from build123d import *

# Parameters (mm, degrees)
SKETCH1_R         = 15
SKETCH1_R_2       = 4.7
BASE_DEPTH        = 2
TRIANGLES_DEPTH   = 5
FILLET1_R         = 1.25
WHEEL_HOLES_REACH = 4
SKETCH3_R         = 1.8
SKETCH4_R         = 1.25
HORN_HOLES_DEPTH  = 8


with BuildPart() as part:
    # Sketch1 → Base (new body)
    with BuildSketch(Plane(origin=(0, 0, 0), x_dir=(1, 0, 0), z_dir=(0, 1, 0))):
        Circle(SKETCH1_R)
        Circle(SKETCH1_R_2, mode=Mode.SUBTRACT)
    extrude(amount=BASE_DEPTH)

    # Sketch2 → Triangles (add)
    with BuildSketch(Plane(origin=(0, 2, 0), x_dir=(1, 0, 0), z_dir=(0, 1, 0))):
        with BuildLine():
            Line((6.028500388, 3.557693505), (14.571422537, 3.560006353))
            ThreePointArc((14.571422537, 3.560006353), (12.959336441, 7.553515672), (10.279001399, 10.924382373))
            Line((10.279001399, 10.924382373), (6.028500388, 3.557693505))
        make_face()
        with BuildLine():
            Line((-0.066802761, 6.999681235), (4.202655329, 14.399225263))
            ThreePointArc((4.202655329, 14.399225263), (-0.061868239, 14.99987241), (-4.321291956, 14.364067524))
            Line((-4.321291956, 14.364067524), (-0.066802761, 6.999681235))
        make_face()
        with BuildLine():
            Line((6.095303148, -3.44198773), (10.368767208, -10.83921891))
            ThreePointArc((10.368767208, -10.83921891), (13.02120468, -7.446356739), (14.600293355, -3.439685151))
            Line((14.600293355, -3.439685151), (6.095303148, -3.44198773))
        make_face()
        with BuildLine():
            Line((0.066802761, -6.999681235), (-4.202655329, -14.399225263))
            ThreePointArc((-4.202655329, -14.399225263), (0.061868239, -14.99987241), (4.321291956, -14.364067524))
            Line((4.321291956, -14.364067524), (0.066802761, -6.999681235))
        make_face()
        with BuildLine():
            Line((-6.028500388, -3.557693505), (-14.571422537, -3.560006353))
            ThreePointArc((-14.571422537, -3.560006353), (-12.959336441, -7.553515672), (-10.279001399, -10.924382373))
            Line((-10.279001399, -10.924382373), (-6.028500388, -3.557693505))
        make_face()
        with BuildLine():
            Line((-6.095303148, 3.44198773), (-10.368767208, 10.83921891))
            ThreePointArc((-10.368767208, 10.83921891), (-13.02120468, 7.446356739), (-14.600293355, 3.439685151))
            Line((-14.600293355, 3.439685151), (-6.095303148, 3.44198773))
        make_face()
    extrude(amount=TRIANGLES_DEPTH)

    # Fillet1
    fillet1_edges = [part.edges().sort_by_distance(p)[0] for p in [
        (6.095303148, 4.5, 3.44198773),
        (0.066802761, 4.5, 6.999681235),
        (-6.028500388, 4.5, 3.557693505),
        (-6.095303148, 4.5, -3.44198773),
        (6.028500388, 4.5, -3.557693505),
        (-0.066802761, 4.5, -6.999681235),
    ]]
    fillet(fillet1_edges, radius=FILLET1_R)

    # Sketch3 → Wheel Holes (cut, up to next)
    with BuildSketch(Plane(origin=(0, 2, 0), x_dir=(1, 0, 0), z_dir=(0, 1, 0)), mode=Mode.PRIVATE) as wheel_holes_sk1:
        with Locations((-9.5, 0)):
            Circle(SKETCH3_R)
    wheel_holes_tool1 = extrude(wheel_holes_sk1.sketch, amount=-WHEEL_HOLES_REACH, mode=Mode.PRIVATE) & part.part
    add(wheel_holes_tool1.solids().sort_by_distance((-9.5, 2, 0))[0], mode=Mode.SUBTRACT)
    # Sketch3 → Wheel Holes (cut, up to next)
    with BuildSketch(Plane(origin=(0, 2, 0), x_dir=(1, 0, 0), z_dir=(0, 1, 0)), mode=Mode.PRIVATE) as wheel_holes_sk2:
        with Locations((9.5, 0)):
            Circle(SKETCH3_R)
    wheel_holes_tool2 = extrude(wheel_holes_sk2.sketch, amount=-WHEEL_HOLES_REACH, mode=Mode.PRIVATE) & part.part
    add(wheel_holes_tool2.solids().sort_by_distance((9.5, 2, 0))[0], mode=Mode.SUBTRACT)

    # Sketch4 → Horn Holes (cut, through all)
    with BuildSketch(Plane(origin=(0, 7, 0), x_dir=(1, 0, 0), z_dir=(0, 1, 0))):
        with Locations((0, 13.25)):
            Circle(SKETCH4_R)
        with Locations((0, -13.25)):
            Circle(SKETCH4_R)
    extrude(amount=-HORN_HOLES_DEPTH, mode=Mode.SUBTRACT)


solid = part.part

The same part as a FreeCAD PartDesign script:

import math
import FreeCAD as App
import Part
import Sketcher
Q = App.Units.Quantity


def edges_at(feature, points):
    """Names of the edges that pass closest to the given points."""
    edges = feature.Shape.Edges
    near = lambda p: min(range(len(edges)), key=lambda i: edges[i].distToShape(Part.Vertex(*p))[0])
    return sorted({f"Edge{near(p) + 1}" for p in points})

doc = App.newDocument("Part")
body = doc.addObject("PartDesign::Body", "Body")

# Sketch on XZ plane
sketch1 = body.newObject("Sketcher::SketchObject", "Sketch")
sketch1.AttachmentSupport = (doc.getObject("XZ_Plane"), [""])
sketch1.MapMode = "FlatFace"
sketch1.addGeometry(Part.Circle(App.Vector(0, 0, 0), App.Vector(0, 0, 1), 15), False)
sketch1.addGeometry(Part.Circle(App.Vector(0, 0, 0), App.Vector(0, 0, 1), 4.7), False)
sketch1.addConstraint(Sketcher.Constraint("Coincident", 0, 3, -1, 1))
sketch1.addConstraint(Sketcher.Constraint("Coincident", 1, 3, -1, 1))
sketch1.addConstraint(Sketcher.Constraint("Diameter", 0, Q("30 mm")))
sketch1.addConstraint(Sketcher.Constraint("Diameter", 1, Q("9.4 mm")))
pad1 = body.newObject("PartDesign::Pad", "Pad")
pad1.Profile = sketch1
pad1.Length = 2
pad1.Reversed = True

# Sketch on XZ plane
sketch2 = body.newObject("Sketcher::SketchObject", "Sketch001")
sketch2.AttachmentSupport = (doc.getObject("XZ_Plane"), [""])
sketch2.MapMode = "FlatFace"
sketch2.AttachmentOffset = App.Placement(App.Vector(0, 0, -2), App.Rotation())
sketch2.addGeometry(Part.LineSegment(App.Vector(6, -4, 0), App.Vector(15, -4, 0)), False)
sketch2.addGeometry(Part.ArcOfCircle(Part.Circle(App.Vector(0, 0, 0), App.Vector(0, 0, 1), 15), math.radians(-47), math.radians(-14)), False)
sketch2.addGeometry(Part.LineSegment(App.Vector(10, -11, 0), App.Vector(6, -4, 0)), False)
sketch2.addGeometry(Part.LineSegment(App.Vector(0, -7, 0), App.Vector(4, -14, 0)), False)
sketch2.addGeometry(Part.ArcOfCircle(Part.Circle(App.Vector(0, 0, 0), App.Vector(0, 0, 1), 15), math.radians(-107), math.radians(-74)), False)
sketch2.addGeometry(Part.LineSegment(App.Vector(-4, -14, 0), App.Vector(0, -7, 0)), False)
sketch2.addGeometry(Part.LineSegment(App.Vector(6, 3, 0), App.Vector(10, 11, 0)), False)
sketch2.addGeometry(Part.ArcOfCircle(Part.Circle(App.Vector(0, 0, 0), App.Vector(0, 0, 1), 15), math.radians(13), math.radians(46)), False)
sketch2.addGeometry(Part.LineSegment(App.Vector(15, 3, 0), App.Vector(6, 3, 0)), False)
sketch2.addGeometry(Part.LineSegment(App.Vector(0, 7, 0), App.Vector(-4, 14, 0)), False)
sketch2.addGeometry(Part.ArcOfCircle(Part.Circle(App.Vector(0, 0, 0), App.Vector(0, 0, 1), 15), math.radians(73), math.radians(106)), False)
sketch2.addGeometry(Part.LineSegment(App.Vector(4, 14, 0), App.Vector(0, 7, 0)), False)
sketch2.addGeometry(Part.LineSegment(App.Vector(-6, 4, 0), App.Vector(-15, 4, 0)), False)
sketch2.addGeometry(Part.ArcOfCircle(Part.Circle(App.Vector(0, 0, 0), App.Vector(0, 0, 1), 15), math.radians(133), math.radians(166)), False)
sketch2.addGeometry(Part.LineSegment(App.Vector(-10, 11, 0), App.Vector(-6, 4, 0)), False)
sketch2.addGeometry(Part.LineSegment(App.Vector(-6, -3, 0), App.Vector(-10, -11, 0)), False)
sketch2.addGeometry(Part.ArcOfCircle(Part.Circle(App.Vector(0, 0, 0), App.Vector(0, 0, 1), 15), math.radians(-167), math.radians(-134)), False)
sketch2.addGeometry(Part.LineSegment(App.Vector(-15, -3, 0), App.Vector(-6, -3, 0)), False)
sketch2.addConstraint(Sketcher.Constraint("Coincident", 0, 2, 1, 2))
sketch2.addConstraint(Sketcher.Constraint("Coincident", 1, 1, 2, 1))
sketch2.addConstraint(Sketcher.Constraint("Coincident", 2, 2, 0, 1))
sketch2.addConstraint(Sketcher.Constraint("Coincident", 3, 2, 4, 2))
sketch2.addConstraint(Sketcher.Constraint("Coincident", 4, 1, 5, 1))
sketch2.addConstraint(Sketcher.Constraint("Coincident", 5, 2, 3, 1))
sketch2.addConstraint(Sketcher.Constraint("Coincident", 6, 2, 7, 2))
sketch2.addConstraint(Sketcher.Constraint("Coincident", 7, 1, 8, 1))
sketch2.addConstraint(Sketcher.Constraint("Coincident", 8, 2, 6, 1))
sketch2.addConstraint(Sketcher.Constraint("Coincident", 9, 2, 10, 2))
sketch2.addConstraint(Sketcher.Constraint("Coincident", 10, 1, 11, 1))
sketch2.addConstraint(Sketcher.Constraint("Coincident", 11, 2, 9, 1))
sketch2.addConstraint(Sketcher.Constraint("Coincident", 12, 2, 13, 2))
sketch2.addConstraint(Sketcher.Constraint("Coincident", 13, 1, 14, 1))
sketch2.addConstraint(Sketcher.Constraint("Coincident", 14, 2, 12, 1))
sketch2.addConstraint(Sketcher.Constraint("Coincident", 15, 2, 16, 2))
sketch2.addConstraint(Sketcher.Constraint("Coincident", 16, 1, 17, 1))
sketch2.addConstraint(Sketcher.Constraint("Coincident", 17, 2, 15, 1))
sketch2.addConstraint(Sketcher.Constraint("Coincident", 1, 3, -1, 1))
sketch2.addConstraint(Sketcher.Constraint("Coincident", 4, 3, -1, 1))
sketch2.addConstraint(Sketcher.Constraint("Coincident", 7, 3, -1, 1))
sketch2.addConstraint(Sketcher.Constraint("Coincident", 10, 3, -1, 1))
sketch2.addConstraint(Sketcher.Constraint("Coincident", 13, 3, -1, 1))
sketch2.addConstraint(Sketcher.Constraint("Coincident", 16, 3, -1, 1))
sketch2.addConstraint(Sketcher.Constraint("Equal", 1, 4))
sketch2.addConstraint(Sketcher.Constraint("Equal", 4, 7))
sketch2.addConstraint(Sketcher.Constraint("Equal", 7, 10))
sketch2.addConstraint(Sketcher.Constraint("Equal", 10, 13))
sketch2.addConstraint(Sketcher.Constraint("Equal", 13, 16))
sketch2.addConstraint(Sketcher.Constraint("Symmetric", 5, 2, 11, 2, -1, 1))
sketch2.addConstraint(Sketcher.Constraint("Symmetric", 2, 2, 14, 2, -1, 1))
sketch2.addConstraint(Sketcher.Constraint("Symmetric", 8, 2, 17, 2, -1, 1))
sketch2.addConstraint(Sketcher.Constraint("Parallel", 2, 3))
sketch2.addConstraint(Sketcher.Constraint("Parallel", 5, 6))
sketch2.addConstraint(Sketcher.Constraint("Parallel", 0, 8))
sketch2.addConstraint(Sketcher.Constraint("Parallel", 3, 9))
sketch2.addConstraint(Sketcher.Constraint("Parallel", 6, 11))
sketch2.addConstraint(Sketcher.Constraint("Parallel", 8, 12))
sketch2.addConstraint(Sketcher.Constraint("Parallel", 9, 14))
sketch2.addConstraint(Sketcher.Constraint("Parallel", 11, 15))
sketch2.addConstraint(Sketcher.Constraint("Parallel", 12, 17))
sketch2.addConstraint(Sketcher.Constraint("Equal", 0, 3))
sketch2.addConstraint(Sketcher.Constraint("Equal", 2, 5))
sketch2.addConstraint(Sketcher.Constraint("Equal", 3, 6))
sketch2.addConstraint(Sketcher.Constraint("Equal", 5, 8))
sketch2.addConstraint(Sketcher.Constraint("Radius", 1, Q("15 mm")))
sketch2.addConstraint(Sketcher.Constraint("DistanceX", -1, 1, 1, 1, Q("10.279001 mm")))
sketch2.addConstraint(Sketcher.Constraint("DistanceX", -1, 1, 2, 2, Q("6.0285 mm")))
sketch2.addConstraint(Sketcher.Constraint("DistanceX", 11, 2, 8, 2, Q("6.0285 mm")))
sketch2.addConstraint(Sketcher.Constraint("DistanceY", 11, 2, 13, 1, Q("3.924701 mm")))
sketch2.addConstraint(Sketcher.Constraint("Distance", 2, Q("8.504991 mm")))
pad2 = body.newObject("PartDesign::Pad", "Pad001")
pad2.Profile = sketch2
pad2.Length = 5
pad2.Reversed = True
doc.recompute()

fillet = body.newObject("PartDesign::Fillet", "Fillet")
fillet.Base = (pad2, edges_at(pad2, [
    (6.095, 4.5, 3.442),
    (0.067, 4.5, 7),
    (-6.029, 4.5, 3.558),
    (-6.095, 4.5, -3.442),
    (6.029, 4.5, -3.558),
    (-0.067, 4.5, -7),
]))
fillet.Radius = 1.25

# Sketch on XZ plane
sketch3 = body.newObject("Sketcher::SketchObject", "Sketch002")
sketch3.AttachmentSupport = (doc.getObject("XZ_Plane"), [""])
sketch3.MapMode = "FlatFace"
sketch3.AttachmentOffset = App.Placement(App.Vector(0, 0, -2), App.Rotation())
sketch3.addGeometry(Part.Circle(App.Vector(-9.5, 0, 0), App.Vector(0, 0, 1), 1.8), False)
sketch3.addConstraint(Sketcher.Constraint("PointOnObject", 0, 3, -1))
sketch3.addConstraint(Sketcher.Constraint("Diameter", 0, Q("3.6 mm")))
sketch3.addConstraint(Sketcher.Constraint("DistanceX", 0, 3, -1, 1, Q("9.5 mm")))
pocket1 = body.newObject("PartDesign::Pocket", "Pocket")
pocket1.Profile = sketch3
pocket1.Type = "UpToFirst"
pocket1.Reversed = True

# Sketch on XZ plane
sketch4 = body.newObject("Sketcher::SketchObject", "Sketch003")
sketch4.AttachmentSupport = (doc.getObject("XZ_Plane"), [""])
sketch4.MapMode = "FlatFace"
sketch4.AttachmentOffset = App.Placement(App.Vector(0, 0, -2), App.Rotation())
sketch4.addGeometry(Part.Circle(App.Vector(9.5, 0, 0), App.Vector(0, 0, 1), 1.8), False)
sketch4.addConstraint(Sketcher.Constraint("PointOnObject", 0, 3, -1))
sketch4.addConstraint(Sketcher.Constraint("Diameter", 0, Q("3.6 mm")))
sketch4.addConstraint(Sketcher.Constraint("DistanceX", -1, 1, 0, 3, Q("9.5 mm")))
pocket2 = body.newObject("PartDesign::Pocket", "Pocket001")
pocket2.Profile = sketch4
pocket2.Type = "UpToFirst"
pocket2.Reversed = True

# Sketch on XZ plane
sketch5 = body.newObject("Sketcher::SketchObject", "Sketch004")
sketch5.AttachmentSupport = (doc.getObject("XZ_Plane"), [""])
sketch5.MapMode = "FlatFace"
sketch5.AttachmentOffset = App.Placement(App.Vector(0, 0, -7), App.Rotation())
sketch5.addGeometry(Part.Circle(App.Vector(0, -13.2, 0), App.Vector(0, 0, 1), 1.2), False)
sketch5.addGeometry(Part.Circle(App.Vector(0, 13.2, 0), App.Vector(0, 0, 1), 1.2), False)
sketch5.addConstraint(Sketcher.Constraint("Equal", 0, 1))
sketch5.addConstraint(Sketcher.Constraint("Symmetric", 0, 3, 1, 3, -1, 1))
sketch5.addConstraint(Sketcher.Constraint("PointOnObject", 0, 3, -2))
sketch5.addConstraint(Sketcher.Constraint("Diameter", 0, Q("2.5 mm")))
sketch5.addConstraint(Sketcher.Constraint("DistanceY", 0, 3, 1, 3, Q("26.5 mm")))
pocket3 = body.newObject("PartDesign::Pocket", "Pocket002")
pocket3.Profile = sketch5
pocket3.Type = "ThroughAll"
pocket3.Reversed = True

doc.recompute()
